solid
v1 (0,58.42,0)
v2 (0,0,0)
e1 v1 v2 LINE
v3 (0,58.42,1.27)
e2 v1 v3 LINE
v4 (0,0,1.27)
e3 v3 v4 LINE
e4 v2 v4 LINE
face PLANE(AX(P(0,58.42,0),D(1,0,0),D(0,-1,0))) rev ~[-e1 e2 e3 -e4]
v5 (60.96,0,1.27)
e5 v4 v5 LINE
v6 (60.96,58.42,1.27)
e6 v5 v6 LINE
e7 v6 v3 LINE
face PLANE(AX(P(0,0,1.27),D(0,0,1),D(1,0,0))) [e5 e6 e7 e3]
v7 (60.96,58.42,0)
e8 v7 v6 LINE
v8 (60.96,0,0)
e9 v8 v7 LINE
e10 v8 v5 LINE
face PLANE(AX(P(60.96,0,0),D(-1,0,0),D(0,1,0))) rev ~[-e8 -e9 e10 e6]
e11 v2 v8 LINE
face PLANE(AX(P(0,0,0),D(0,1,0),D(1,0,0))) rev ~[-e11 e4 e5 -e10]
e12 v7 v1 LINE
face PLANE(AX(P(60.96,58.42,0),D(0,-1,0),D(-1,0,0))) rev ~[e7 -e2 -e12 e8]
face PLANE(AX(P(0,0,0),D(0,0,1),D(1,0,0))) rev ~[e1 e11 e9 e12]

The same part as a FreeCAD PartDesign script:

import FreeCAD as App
import Part
import Sketcher
Q = App.Units.Quantity


def add_polygon(sketch, points):
    """Adds a closed chain of lines whose ends are joined by coincident constraints."""
    first, n = sketch.GeometryCount, len(points)
    for a, b in zip(points, points[1:] + points[:1]):
        sketch.addGeometry(Part.LineSegment(App.Vector(*a, 0), App.Vector(*b, 0)), False)
    for i in range(n):
        sketch.addConstraint(Sketcher.Constraint("Coincident", first + i, 2, first + (i + 1) % n, 1))

doc = App.newDocument("Part")
body = doc.addObject("PartDesign::Body", "Body")

sketch1 = body.newObject("Sketcher::SketchObject", "Sketch")
sketch1.AttachmentSupport = (doc.getObject("XY_Plane"), [""])
sketch1.MapMode = "FlatFace"
add_polygon(sketch1, [(0, 58), (0, 0), (61, 0), (61, 58)])
sketch1.addConstraint(Sketcher.Constraint("Vertical", 0))
sketch1.addConstraint(Sketcher.Constraint("Horizontal", 1))
sketch1.addConstraint(Sketcher.Constraint("Vertical", 2))
sketch1.addConstraint(Sketcher.Constraint("Horizontal", 3))
sketch1.addConstraint(Sketcher.Constraint("Coincident", 0, 2, -1, 1))
sketch1.addConstraint(Sketcher.Constraint("DistanceX", 1, 1, 1, 2, Q("2.4 in")))
sketch1.addConstraint(Sketcher.Constraint("DistanceY", 0, 2, 0, 1, Q("2.3 in")))
pad1 = body.newObject("PartDesign::Pad", "Pad")
pad1.Profile = sketch1
pad1.Length = Q("0.05 in")

doc.recompute()
